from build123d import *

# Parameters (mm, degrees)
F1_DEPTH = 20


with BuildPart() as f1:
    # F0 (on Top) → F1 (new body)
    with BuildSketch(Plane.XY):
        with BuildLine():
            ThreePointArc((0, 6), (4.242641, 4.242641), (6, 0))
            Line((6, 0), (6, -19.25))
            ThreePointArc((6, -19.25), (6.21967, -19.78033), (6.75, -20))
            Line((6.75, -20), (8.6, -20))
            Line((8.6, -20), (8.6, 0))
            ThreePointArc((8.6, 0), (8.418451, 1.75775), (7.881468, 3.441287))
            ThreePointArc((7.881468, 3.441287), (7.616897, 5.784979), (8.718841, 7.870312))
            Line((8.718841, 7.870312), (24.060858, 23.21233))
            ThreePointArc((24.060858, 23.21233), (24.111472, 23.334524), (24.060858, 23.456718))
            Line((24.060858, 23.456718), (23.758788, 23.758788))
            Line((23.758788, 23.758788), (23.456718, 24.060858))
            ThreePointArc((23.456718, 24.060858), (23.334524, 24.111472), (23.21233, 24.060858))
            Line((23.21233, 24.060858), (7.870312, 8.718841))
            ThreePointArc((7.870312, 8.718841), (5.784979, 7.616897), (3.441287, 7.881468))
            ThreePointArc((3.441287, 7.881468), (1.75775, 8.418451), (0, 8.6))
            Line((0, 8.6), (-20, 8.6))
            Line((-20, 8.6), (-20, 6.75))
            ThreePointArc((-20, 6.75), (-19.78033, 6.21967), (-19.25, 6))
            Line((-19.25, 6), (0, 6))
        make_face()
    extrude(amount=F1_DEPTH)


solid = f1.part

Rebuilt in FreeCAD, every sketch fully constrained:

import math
import FreeCAD as App
import Part
import Sketcher

V = App.Vector
Q = App.Units.Quantity

doc = App.newDocument("Part")
body = doc.addObject("PartDesign::Body", "Body")

sketch1 = body.newObject("Sketcher::SketchObject", "Sketch")
sketch1.AttachmentSupport = (doc.getObject("XY_Plane"), [""])
sketch1.MapMode = "FlatFace"
sketch1.addGeometry([
    Part.ArcOfCircle(Part.Circle(V(0, 0, 0), V(0, 0, 1), 6), math.radians(0), math.radians(90)),
    Part.LineSegment(V(6, 0, 0), V(6, -19.25, 0)),
    Part.ArcOfCircle(Part.Circle(V(6.75, -19.25, 0), V(0, 0, 1), 0.75), math.radians(-180), math.radians(-90)),
    Part.LineSegment(V(6.75, -20, 0), V(8.6, -20, 0)),
    Part.LineSegment(V(8.6, -20, 0), V(8.6, 0, 0)),
    Part.ArcOfCircle(Part.Circle(V(0, 0, 0), V(0, 0, 1), 8.6), math.radians(0), math.radians(24)),
    Part.ArcOfCircle(Part.Circle(V(11.55, 5.04, 0), V(0, 0, 1), 4), math.radians(135), math.radians(204)),
    Part.LineSegment(V(8.72, 7.87, 0), V(24.06, 23.21, 0)),
    Part.ArcOfCircle(Part.Circle(V(23.94, 23.33, 0), V(0, 0, 1), 0.17), math.radians(-45), math.radians(45)),
    Part.LineSegment(V(24.06, 23.46, 0), V(23.46, 24.06, 0)),
    Part.ArcOfCircle(Part.Circle(V(23.33, 23.94, 0), V(0, 0, 1), 0.17), math.radians(45), math.radians(135)),
    Part.LineSegment(V(23.21, 24.06, 0), V(7.87, 8.72, 0)),
    Part.ArcOfCircle(Part.Circle(V(5.04, 11.55, 0), V(0, 0, 1), 4), math.radians(-114), math.radians(-45)),
    Part.ArcOfCircle(Part.Circle(V(0, 0, 0), V(0, 0, 1), 8.6), math.radians(66), math.radians(90)),
    Part.LineSegment(V(0, 8.6, 0), V(-20, 8.6, 0)),
    Part.LineSegment(V(-20, 8.6, 0), V(-20, 6.75, 0)),
    Part.ArcOfCircle(Part.Circle(V(-19.25, 6.75, 0), V(0, 0, 1), 0.75), math.radians(-180), math.radians(-90)),
    Part.LineSegment(V(-19.25, 6, 0), V(0, 6, 0)),
], False)
sketch1.addConstraint([
    Sketcher.Constraint("Tangent", 0, 1, 1, 1),
    Sketcher.Constraint("Tangent", 1, 2, 2, 1),
    Sketcher.Constraint("Tangent", 2, 2, 3, 1),
    Sketcher.Constraint("Coincident", 3, 2, 4, 1),
    Sketcher.Constraint("Tangent", 4, 2, 5, 1),
    Sketcher.Constraint("Tangent", 5, 2, 6, 2),
    Sketcher.Constraint("Tangent", 6, 1, 7, 1),
    Sketcher.Constraint("Coincident", 7, 2, 8, 1),
    Sketcher.Constraint("Coincident", 8, 2, 9, 1),
    Sketcher.Constraint("Coincident", 9, 2, 10, 1),
    Sketcher.Constraint("Coincident", 10, 2, 11, 1),
    Sketcher.Constraint("Tangent", 11, 2, 12, 2),
    Sketcher.Constraint("Tangent", 12, 1, 13, 1),
    Sketcher.Constraint("Tangent", 13, 2, 14, 1),
    Sketcher.Constraint("Coincident", 14, 2, 15, 1),
    Sketcher.Constraint("Tangent", 15, 2, 16, 1),
    Sketcher.Constraint("Tangent", 16, 2, 17, 1),
    Sketcher.Constraint("Tangent", 17, 2, 0, 2),
    Sketcher.Constraint("Vertical", 1),
    Sketcher.Constraint("Horizontal", 3),
    Sketcher.Constraint("Vertical", 4),
    Sketcher.Constraint("Horizontal", 14),
    Sketcher.Constraint("Vertical", 15),
    Sketcher.Constraint("Horizontal", 17),
    Sketcher.Constraint("Coincident", 0, 3, -1, 1),
    Sketcher.Constraint("Equal", 8, 10),
    Sketcher.Constraint("Equal", 6, 12),
    Sketcher.Constraint("Equal", 5, 13),
    Sketcher.Constraint("Equal", 2, 16),
    Sketcher.Constraint("PointOnObject", 4, 2, -1),
    Sketcher.Constraint("PointOnObject", 13, 2, -2),
    Sketcher.Constraint("Perpendicular", 7, 9),
    Sketcher.Constraint("Perpendicular", 9, 11),
    Sketcher.Constraint("Horizontal", 9, 2, 10, 2),
    Sketcher.Constraint("Vertical", 7, 2, 8, 2),
    Sketcher.Constraint("Equal", 17, 1),
    Sketcher.Constraint("Equal", 3, 15),
    Sketcher.Constraint("Equal", 7, 11),
    Sketcher.Constraint("Radius", 0, 5.999999),
    Sketcher.Constraint("DistanceX", 14, 2, 14, 1, 20.0),
    Sketcher.Constraint("Angle", 7, Q("45.000002 deg")),
    Sketcher.Constraint("Radius", 2, 0.75),
    Sketcher.Constraint("DistanceX", 3, 1, 3, 2, 1.85),
    Sketcher.Constraint("Radius", 8, 0.172809),
    Sketcher.Constraint("Radius", 5, 8.599986),
    Sketcher.Constraint("Radius", 6, 3.999998),
    Sketcher.Constraint("Distance", 7, 21.696889),
    Sketcher.Constraint("DistanceX", -1, 1, 5, 2, 7.881468),
    Sketcher.Constraint("DistanceY", -1, 1, 8, 2, 23.456718),
    Sketcher.Constraint("DistanceX", -1, 1, 10, 2, 23.21233),
])
pad1 = body.newObject("PartDesign::Pad", "Pad")
pad1.Profile = sketch1
pad1.Length = 20

doc.recompute()
